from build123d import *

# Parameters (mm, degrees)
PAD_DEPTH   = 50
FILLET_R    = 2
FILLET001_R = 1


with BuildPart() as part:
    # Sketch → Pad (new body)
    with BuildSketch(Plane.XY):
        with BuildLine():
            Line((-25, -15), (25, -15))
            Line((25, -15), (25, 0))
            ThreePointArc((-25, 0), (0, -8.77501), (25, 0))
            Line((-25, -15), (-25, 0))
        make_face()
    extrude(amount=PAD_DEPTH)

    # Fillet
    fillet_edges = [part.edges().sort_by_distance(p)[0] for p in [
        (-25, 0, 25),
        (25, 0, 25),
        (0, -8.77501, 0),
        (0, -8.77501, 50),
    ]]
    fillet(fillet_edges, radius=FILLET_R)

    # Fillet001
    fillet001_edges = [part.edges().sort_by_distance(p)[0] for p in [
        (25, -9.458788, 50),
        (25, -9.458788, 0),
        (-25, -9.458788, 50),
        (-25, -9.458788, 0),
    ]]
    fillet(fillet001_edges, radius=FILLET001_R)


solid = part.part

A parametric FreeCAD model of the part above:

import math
import FreeCAD as App
import Part
import Sketcher
from FreeCAD import Vector
Q = App.Units.Quantity


def edges_at(feature, points):
    """Names of the edges that pass closest to the given points."""
    edges = feature.Shape.Edges
    near = lambda p: min(range(len(edges)), key=lambda i: edges[i].distToShape(Part.Vertex(*p))[0])
    return sorted({f"Edge{near(p) + 1}" for p in points})

doc = App.newDocument("Part")
body = doc.addObject("PartDesign::Body", "Body")

sketch1 = doc.addObject("Sketcher::SketchObject", "Sketch")
body.addObject(sketch1)
sketch1.AttachmentSupport = (doc.XY_Plane, [""])
sketch1.MapMode = "FlatFace"
sketch1.addGeometry([
    Part.LineSegment(Vector(-25, -15, 0), Vector(25, -15, 0)),
    Part.LineSegment(Vector(25, -15, 0), Vector(25, 0, 0)),
    Part.ArcOfCircle(Part.Circle(Vector(0, 31, 0), Vector(0, 0, 1), 40), math.radians(-129), math.radians(-51)),
    Part.LineSegment(Vector(-25, 0, 0), Vector(-25, -15, 0)),
], False)
sketch1.addConstraint([
    Sketcher.Constraint("Coincident", 0, 2, 1, 1),
    Sketcher.Constraint("Coincident", 1, 2, 2, 2),
    Sketcher.Constraint("Coincident", 2, 1, 3, 1),
    Sketcher.Constraint("Coincident", 3, 2, 0, 1),
    Sketcher.Constraint("Horizontal", 0),
    Sketcher.Constraint("Vertical", 1),
    Sketcher.Constraint("Vertical", 3),
    Sketcher.Constraint("Symmetric", 1, 2, 2, 1, -1, 1),
    Sketcher.Constraint("PointOnObject", 2, 3, -2),
    Sketcher.Constraint("Radius", 2, Q("40 mm")),
    Sketcher.Constraint("DistanceX", 0, 1, 0, 2, Q("50 mm")),
    Sketcher.Constraint("DistanceY", 1, 1, 1, 2, Q("15 mm")),
])
pad1 = doc.addObject("PartDesign::Pad", "Pad")
body.addObject(pad1)
pad1.Profile = sketch1
pad1.Length = 50
doc.recompute()

fillet = doc.addObject("PartDesign::Fillet", "Fillet")
body.addObject(fillet)
fillet.Base = (pad1, edges_at(pad1, [
    (-25, 0, 25),
    (25, 0, 25),
    (0, -8.775, 0),
    (0, -8.775, 50),
]))
fillet.Radius = 2
doc.recompute()

fillet2 = doc.addObject("PartDesign::Fillet", "Fillet001")
body.addObject(fillet2)
fillet2.Base = (fillet, edges_at(fillet, [
    (25, -9.459, 50),
    (25, -9.459, 0),
    (-25, -9.459, 50),
    (-25, -9.459, 0),
]))
fillet2.Radius = 1

doc.recompute()
